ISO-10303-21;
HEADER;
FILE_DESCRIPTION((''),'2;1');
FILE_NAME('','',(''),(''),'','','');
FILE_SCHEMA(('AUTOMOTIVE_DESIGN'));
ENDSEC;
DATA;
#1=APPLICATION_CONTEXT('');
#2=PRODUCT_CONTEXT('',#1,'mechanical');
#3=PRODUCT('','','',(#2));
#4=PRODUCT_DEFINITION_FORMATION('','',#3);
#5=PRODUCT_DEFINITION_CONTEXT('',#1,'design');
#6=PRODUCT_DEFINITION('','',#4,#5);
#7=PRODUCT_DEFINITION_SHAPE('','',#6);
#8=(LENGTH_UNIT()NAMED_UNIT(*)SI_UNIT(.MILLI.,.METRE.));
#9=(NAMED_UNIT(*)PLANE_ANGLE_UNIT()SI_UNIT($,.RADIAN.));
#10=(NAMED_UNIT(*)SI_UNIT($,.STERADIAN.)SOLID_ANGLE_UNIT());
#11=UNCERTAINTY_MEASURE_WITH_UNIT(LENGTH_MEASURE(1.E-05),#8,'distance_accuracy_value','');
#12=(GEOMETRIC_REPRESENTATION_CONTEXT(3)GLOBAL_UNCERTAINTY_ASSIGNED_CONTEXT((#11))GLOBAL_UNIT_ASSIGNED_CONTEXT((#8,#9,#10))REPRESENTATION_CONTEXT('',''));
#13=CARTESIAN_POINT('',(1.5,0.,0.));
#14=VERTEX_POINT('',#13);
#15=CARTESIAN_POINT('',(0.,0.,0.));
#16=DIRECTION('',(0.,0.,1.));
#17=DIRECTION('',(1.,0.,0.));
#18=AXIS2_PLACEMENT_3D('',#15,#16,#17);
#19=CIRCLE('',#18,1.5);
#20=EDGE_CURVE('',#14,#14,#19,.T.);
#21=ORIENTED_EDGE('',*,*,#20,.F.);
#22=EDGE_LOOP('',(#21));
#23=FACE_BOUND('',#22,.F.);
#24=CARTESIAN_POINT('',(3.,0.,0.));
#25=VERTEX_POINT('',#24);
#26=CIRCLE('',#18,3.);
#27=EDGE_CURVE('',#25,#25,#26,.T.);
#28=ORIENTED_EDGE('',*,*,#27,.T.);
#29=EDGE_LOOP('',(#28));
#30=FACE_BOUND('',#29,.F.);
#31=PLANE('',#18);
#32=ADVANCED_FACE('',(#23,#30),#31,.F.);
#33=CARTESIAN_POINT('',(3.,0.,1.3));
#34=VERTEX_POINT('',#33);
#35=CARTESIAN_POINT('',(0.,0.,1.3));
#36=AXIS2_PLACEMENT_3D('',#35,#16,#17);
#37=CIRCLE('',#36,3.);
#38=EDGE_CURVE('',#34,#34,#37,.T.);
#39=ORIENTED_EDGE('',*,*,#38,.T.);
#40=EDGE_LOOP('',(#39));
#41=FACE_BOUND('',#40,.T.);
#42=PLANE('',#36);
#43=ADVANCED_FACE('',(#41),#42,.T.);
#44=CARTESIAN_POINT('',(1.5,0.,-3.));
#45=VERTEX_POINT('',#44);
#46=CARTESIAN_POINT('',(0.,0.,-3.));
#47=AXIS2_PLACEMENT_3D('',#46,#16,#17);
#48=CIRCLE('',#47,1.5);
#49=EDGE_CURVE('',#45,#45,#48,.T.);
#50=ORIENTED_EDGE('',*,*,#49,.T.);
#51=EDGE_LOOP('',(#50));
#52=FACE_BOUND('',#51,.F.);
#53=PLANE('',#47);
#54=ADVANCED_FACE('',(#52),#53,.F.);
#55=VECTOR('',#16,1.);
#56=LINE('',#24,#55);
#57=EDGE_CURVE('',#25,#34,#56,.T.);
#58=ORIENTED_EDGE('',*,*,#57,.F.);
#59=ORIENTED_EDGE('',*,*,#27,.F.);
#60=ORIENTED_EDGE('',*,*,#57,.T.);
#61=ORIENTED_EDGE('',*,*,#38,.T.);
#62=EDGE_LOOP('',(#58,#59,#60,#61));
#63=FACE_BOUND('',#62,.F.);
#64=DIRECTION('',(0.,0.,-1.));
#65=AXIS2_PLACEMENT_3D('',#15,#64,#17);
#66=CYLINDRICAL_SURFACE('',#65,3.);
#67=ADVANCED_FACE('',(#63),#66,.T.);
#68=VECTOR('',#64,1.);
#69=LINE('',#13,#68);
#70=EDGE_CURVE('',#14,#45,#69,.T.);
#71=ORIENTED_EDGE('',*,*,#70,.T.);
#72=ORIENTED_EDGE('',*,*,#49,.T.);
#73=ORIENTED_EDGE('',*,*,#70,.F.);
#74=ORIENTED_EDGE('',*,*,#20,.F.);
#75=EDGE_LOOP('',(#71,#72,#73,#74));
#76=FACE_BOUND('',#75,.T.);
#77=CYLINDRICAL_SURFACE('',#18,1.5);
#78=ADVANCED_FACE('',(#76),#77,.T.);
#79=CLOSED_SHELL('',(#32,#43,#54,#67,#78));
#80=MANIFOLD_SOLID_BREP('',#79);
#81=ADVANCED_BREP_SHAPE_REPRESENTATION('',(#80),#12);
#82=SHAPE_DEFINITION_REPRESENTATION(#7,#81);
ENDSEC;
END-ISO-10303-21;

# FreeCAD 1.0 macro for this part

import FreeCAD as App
import Part
import Sketcher

doc = App.newDocument("Part")
body = doc.addObject("PartDesign::Body", "Body")

sketch1 = body.newObject("Sketcher::SketchObject", "Sketch")
sketch1.AttachmentSupport = (doc.getObject("XY_Plane"), [""])
sketch1.MapMode = "FlatFace"
sketch1.addGeometry(Part.Circle(App.Vector(0, 0, 0), App.Vector(0, 0, 1), 3), False)
sketch1.addConstraint(Sketcher.Constraint("Coincident", 0, 3, -1, 1))
sketch1.addConstraint(Sketcher.Constraint("Diameter", 0, 6.0))
pad1 = body.newObject("PartDesign::Pad", "Pad")
pad1.Profile = sketch1
pad1.Length = 1.3

sketch2 = body.newObject("Sketcher::SketchObject", "Sketch001")
sketch2.AttachmentSupport = (doc.getObject("XY_Plane"), [""])
sketch2.MapMode = "FlatFace"
sketch2.addGeometry(Part.Circle(App.Vector(0, 0, 0), App.Vector(0, 0, 1), 1.5), False)
sketch2.addConstraint(Sketcher.Constraint("Coincident", 0, 3, -1, 1))
sketch2.addConstraint(Sketcher.Constraint("Diameter", 0, 3.0))
pad2 = body.newObject("PartDesign::Pad", "Pad001")
pad2.Profile = sketch2
pad2.Length = 3
pad2.Reversed = True

doc.recompute()
